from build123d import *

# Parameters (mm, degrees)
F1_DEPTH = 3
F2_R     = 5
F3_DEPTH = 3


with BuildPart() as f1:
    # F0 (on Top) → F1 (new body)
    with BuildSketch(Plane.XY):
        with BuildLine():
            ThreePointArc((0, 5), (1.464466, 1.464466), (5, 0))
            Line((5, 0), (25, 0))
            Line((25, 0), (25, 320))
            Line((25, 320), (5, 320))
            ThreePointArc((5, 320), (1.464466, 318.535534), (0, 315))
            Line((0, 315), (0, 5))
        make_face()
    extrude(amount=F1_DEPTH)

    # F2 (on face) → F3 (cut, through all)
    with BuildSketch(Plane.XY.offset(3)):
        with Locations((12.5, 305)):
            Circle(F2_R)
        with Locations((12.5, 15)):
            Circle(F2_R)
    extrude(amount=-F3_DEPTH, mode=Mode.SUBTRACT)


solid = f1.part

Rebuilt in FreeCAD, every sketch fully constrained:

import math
import FreeCAD as App
import Part
import Sketcher
from FreeCAD import Vector

doc = App.newDocument("Part")
params = doc.addObject("Spreadsheet::Sheet", "Params")
for row, (alias, value) in enumerate([
    ("sketch1_radius", "5 mm"),
    ("sketch1_width", "20 mm"),
    ("sketch1_height", "320 mm"),
    ("pad1_length", "3 mm"),
    ("sketch2_diameter", "10 mm"),
], start=1):
    params.set(f"A{row}", alias)
    params.set(f"B{row}", "=" + value)
    params.setAlias(f"B{row}", alias)

body = doc.addObject("PartDesign::Body", "Body")

# Sketch on XY plane
sketch1 = body.newObject("Sketcher::SketchObject", "Sketch")
sketch1.AttachmentSupport = (doc.getObject("XY_Plane"), [""])
sketch1.MapMode = "FlatFace"
sketch1.addGeometry([
    Part.ArcOfCircle(Part.Circle(Vector(5, 5, 0), Vector(0, 0, 1), 5), math.radians(180), math.radians(270)),  # 0
    Part.LineSegment(Vector(5, 0, 0), Vector(25, 0, 0)),  # 1
    Part.LineSegment(Vector(25, 0, 0), Vector(25, 320, 0)),  # 2
    Part.LineSegment(Vector(25, 320, 0), Vector(5, 320, 0)),  # 3
    Part.ArcOfCircle(Part.Circle(Vector(5, 315, 0), Vector(0, 0, 1), 5), math.radians(90), math.radians(180)),  # 4
    Part.LineSegment(Vector(0, 315, 0), Vector(0, 5, 0)),  # 5
], False)
sketch1.addConstraint([
    Sketcher.Constraint("Tangent", 0, 2, 1, 1),
    Sketcher.Constraint("Coincident", 1, 2, 2, 1),
    Sketcher.Constraint("Coincident", 2, 2, 3, 1),
    Sketcher.Constraint("Tangent", 3, 2, 4, 1),
    Sketcher.Constraint("Tangent", 4, 2, 5, 1),
    Sketcher.Constraint("Tangent", 5, 2, 0, 1),
    Sketcher.Constraint("Horizontal", 1),
    Sketcher.Constraint("Vertical", 2),
    Sketcher.Constraint("Horizontal", 3),
    Sketcher.Constraint("Vertical", 5),
    Sketcher.Constraint("Equal", 0, 4),
    Sketcher.Constraint("PointOnObject", 0, 2, -1),
    Sketcher.Constraint("PointOnObject", 4, 2, -2),
    Sketcher.Constraint("Radius", 0, 5.0),
    Sketcher.Constraint("DistanceX", 1, 1, 1, 2, 20.0),
    Sketcher.Constraint("DistanceY", 2, 1, 2, 2, 320.0),
])
sketch1.setExpression("Constraints[13]", "Params.sketch1_radius")
sketch1.setExpression("Constraints[14]", "Params.sketch1_width")
sketch1.setExpression("Constraints[15]", "Params.sketch1_height")
pad1 = body.newObject("PartDesign::Pad", "Pad")
pad1.Profile = sketch1
pad1.setExpression("Length", "Params.pad1_length")

# Sketch on XY plane
sketch2 = body.newObject("Sketcher::SketchObject", "Sketch001")
sketch2.AttachmentSupport = (doc.getObject("XY_Plane"), [""])
sketch2.MapMode = "FlatFace"
sketch2.AttachmentOffset = App.Placement(Vector(0, 0, 3), App.Rotation())
sketch2.addGeometry([
    Part.Circle(Vector(12, 305, 0), Vector(0, 0, 1), 5),
    Part.Circle(Vector(12, 15, 0), Vector(0, 0, 1), 5),
], False)
sketch2.addConstraint([
    Sketcher.Constraint("Equal", 0, 1),
    Sketcher.Constraint("Vertical", 0, 3, 1, 3),
    Sketcher.Constraint("Diameter", 0, 10.0),
    Sketcher.Constraint("DistanceY", -1, 1, 0, 3, 305.0),
    Sketcher.Constraint("DistanceY", -1, 1, 1, 3, 15.0),
    Sketcher.Constraint("DistanceX", -1, 1, 0, 3, 12.5),
])
sketch2.setExpression("Constraints[2]", "Params.sketch2_diameter")
pocket1 = body.newObject("PartDesign::Pocket", "Pocket")
pocket1.Profile = sketch2
pocket1.Type = "ThroughAll"

doc.recompute()
